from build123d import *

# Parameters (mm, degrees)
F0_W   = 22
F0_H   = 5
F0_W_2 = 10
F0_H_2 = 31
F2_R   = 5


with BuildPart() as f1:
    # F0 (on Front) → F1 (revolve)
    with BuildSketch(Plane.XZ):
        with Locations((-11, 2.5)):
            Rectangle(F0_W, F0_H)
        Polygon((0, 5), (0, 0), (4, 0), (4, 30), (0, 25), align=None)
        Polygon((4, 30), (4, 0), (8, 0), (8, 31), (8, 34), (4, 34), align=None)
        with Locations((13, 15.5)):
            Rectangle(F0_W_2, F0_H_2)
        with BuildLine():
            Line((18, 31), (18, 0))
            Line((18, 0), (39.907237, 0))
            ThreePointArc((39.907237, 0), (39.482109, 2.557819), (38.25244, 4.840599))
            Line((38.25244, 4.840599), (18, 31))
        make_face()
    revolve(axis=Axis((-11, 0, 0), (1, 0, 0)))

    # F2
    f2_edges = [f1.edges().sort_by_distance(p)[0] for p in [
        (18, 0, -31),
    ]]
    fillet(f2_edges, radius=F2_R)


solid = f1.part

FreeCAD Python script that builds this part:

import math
import FreeCAD as App
import Part
import Sketcher

V = App.Vector


def edges_at(feature, points):
    """Names of the edges that pass closest to the given points."""
    edges = feature.Shape.Edges
    near = lambda p: min(range(len(edges)), key=lambda i: edges[i].distToShape(Part.Vertex(*p))[0])
    return sorted({f"Edge{near(p) + 1}" for p in points})

doc = App.newDocument("Part")
body = doc.addObject("PartDesign::Body", "Body")

sketch1 = body.newObject("Sketcher::SketchObject", "Sketch")
sketch1.AttachmentSupport = (doc.getObject("XZ_Plane"), [""])
sketch1.MapMode = "FlatFace"
sketch1.addGeometry([
    Part.LineSegment(V(-22, 5, 0), V(-22, 0, 0)),
    Part.LineSegment(V(-22, 0, 0), V(39.907237, 0, 0)),
    Part.ArcOfCircle(Part.Circle(V(31.999991, -0.000002, 0), V(0, 0, 1), 7.907246), math.radians(0.000016), math.radians(37.746781)),
    Part.LineSegment(V(38.25244, 4.840599, 0), V(18, 31, 0)),
    Part.LineSegment(V(18, 31, 0), V(8, 31, 0)),
    Part.LineSegment(V(8, 31, 0), V(8, 34, 0)),
    Part.LineSegment(V(8, 34, 0), V(4, 34, 0)),
    Part.LineSegment(V(4, 34, 0), V(4, 30, 0)),
    Part.LineSegment(V(4, 30, 0), V(0, 25, 0)),
    Part.LineSegment(V(0, 25, 0), V(0, 5, 0)),
    Part.LineSegment(V(0, 5, 0), V(-22, 5, 0)),
], False)
sketch1.addConstraint([
    Sketcher.Constraint("Coincident", 0, 2, 1, 1),
    Sketcher.Constraint("Coincident", 1, 2, 2, 1),
    Sketcher.Constraint("Coincident", 2, 2, 3, 1),
    Sketcher.Constraint("Coincident", 3, 2, 4, 1),
    Sketcher.Constraint("Coincident", 4, 2, 5, 1),
    Sketcher.Constraint("Coincident", 5, 2, 6, 1),
    Sketcher.Constraint("Coincident", 6, 2, 7, 1),
    Sketcher.Constraint("Coincident", 7, 2, 8, 1),
    Sketcher.Constraint("Coincident", 8, 2, 9, 1),
    Sketcher.Constraint("Coincident", 9, 2, 10, 1),
    Sketcher.Constraint("Coincident", 10, 2, 0, 1),
    Sketcher.Constraint("Vertical", 0),
    Sketcher.Constraint("Horizontal", 1),
    Sketcher.Constraint("Horizontal", 4),
    Sketcher.Constraint("Vertical", 5),
    Sketcher.Constraint("Horizontal", 6),
    Sketcher.Constraint("Vertical", 7),
    Sketcher.Constraint("Vertical", 9),
    Sketcher.Constraint("Horizontal", 10),
    Sketcher.Constraint("PointOnObject", 0, 2, -1),
    Sketcher.Constraint("PointOnObject", 8, 2, -2),
    Sketcher.Constraint("DistanceX", 4, 2, 4, 1, 10.0),
    Sketcher.Constraint("DistanceX", 6, 2, 6, 1, 4.0),
    Sketcher.Constraint("DistanceX", 10, 2, 10, 1, 22.0),
    Sketcher.Constraint("DistanceY", 0, 2, 0, 1, 5.0),
    Sketcher.Constraint("DistanceY", 5, 1, 5, 2, 3.0),
    Sketcher.Constraint("DistanceY", 7, 2, 7, 1, 4.0),
    Sketcher.Constraint("DistanceY", 9, 2, 9, 1, 20.0),
    Sketcher.Constraint("DistanceX", -1, 1, 3, 2, 18.0),
    Sketcher.Constraint("DistanceY", -1, 1, 3, 2, 31.0),
    Sketcher.Constraint("Radius", 2, 7.907246),
    Sketcher.Constraint("DistanceY", -1, 1, 2, 2, 4.840599),
    Sketcher.Constraint("DistanceY", 2, 3, 2, 2, 4.840601),
    Sketcher.Constraint("Distance", 3, 33.082859),
])
revolution = body.newObject("PartDesign::Revolution", "Revolution")
revolution.Profile = sketch1
revolution.ReferenceAxis = (sketch1, ["H_Axis"])
revolution.Angle = 360
doc.recompute()

fillet = body.newObject("PartDesign::Fillet", "Fillet")
fillet.Base = (revolution, edges_at(revolution, [(18, 0, -31)]))
fillet.Radius = 5

doc.recompute()
